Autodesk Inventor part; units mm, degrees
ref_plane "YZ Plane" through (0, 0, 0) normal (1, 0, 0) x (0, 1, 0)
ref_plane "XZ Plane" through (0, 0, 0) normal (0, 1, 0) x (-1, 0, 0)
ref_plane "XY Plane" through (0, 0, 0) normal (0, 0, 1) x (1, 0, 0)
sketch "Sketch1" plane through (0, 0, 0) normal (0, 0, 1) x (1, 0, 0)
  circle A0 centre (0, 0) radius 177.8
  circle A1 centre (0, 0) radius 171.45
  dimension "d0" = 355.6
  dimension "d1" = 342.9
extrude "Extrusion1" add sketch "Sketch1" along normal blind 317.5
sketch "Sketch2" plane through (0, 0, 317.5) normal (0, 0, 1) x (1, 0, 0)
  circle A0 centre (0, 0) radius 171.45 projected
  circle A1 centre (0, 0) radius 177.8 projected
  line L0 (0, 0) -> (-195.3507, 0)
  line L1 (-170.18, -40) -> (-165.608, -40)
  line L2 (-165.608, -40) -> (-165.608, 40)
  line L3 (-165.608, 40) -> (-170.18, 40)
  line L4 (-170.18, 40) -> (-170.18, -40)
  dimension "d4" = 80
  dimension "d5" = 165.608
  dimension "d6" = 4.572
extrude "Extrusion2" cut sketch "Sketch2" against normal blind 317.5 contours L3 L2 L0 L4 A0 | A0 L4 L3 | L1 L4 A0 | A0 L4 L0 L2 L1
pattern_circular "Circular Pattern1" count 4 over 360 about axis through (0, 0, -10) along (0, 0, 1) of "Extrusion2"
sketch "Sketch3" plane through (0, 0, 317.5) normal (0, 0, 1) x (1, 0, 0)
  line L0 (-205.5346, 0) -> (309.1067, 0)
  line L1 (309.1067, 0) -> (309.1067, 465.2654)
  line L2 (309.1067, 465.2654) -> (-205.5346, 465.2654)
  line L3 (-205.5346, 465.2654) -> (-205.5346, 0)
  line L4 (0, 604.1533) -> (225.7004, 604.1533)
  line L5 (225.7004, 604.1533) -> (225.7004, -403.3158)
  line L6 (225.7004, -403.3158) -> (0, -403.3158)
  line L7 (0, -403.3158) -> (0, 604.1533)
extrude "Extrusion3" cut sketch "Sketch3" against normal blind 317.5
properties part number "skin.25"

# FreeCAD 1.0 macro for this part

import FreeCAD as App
import Part
import Sketcher
from FreeCAD import Vector
Q = App.Units.Quantity

doc = App.newDocument("Part")
body = doc.addObject("PartDesign::Body", "Body")

# Sketch on XY plane
sketch1 = body.newObject("Sketcher::SketchObject", "Sketch")
sketch1.AttachmentSupport = (doc.getObject("XY_Plane"), [""])
sketch1.MapMode = "FlatFace"
sketch1.addGeometry(Part.Circle(Vector(0, 0, 0), Vector(0, 0, 1), 177.8), False)
sketch1.addGeometry(Part.Circle(Vector(0, 0, 0), Vector(0, 0, 1), 171.45), False)
sketch1.addConstraint(Sketcher.Constraint("Coincident", 0, 3, -1, 1))
sketch1.addConstraint(Sketcher.Constraint("Coincident", 1, 3, -1, 1))
sketch1.addConstraint(Sketcher.Constraint("Diameter", 0, Q("14 in")))
sketch1.addConstraint(Sketcher.Constraint("Diameter", 1, Q("13.5 in")))
pad1 = body.newObject("PartDesign::Pad", "Pad")
pad1.Profile = sketch1
pad1.Length = Q("12.5 in")

# Sketch on XY plane
sketch2 = body.newObject("Sketcher::SketchObject", "Sketch001")
sketch2.AttachmentSupport = (doc.getObject("XY_Plane"), [""])
sketch2.MapMode = "FlatFace"
sketch2.AttachmentOffset = App.Placement(Vector(0, 0, 12.5 * 25.4), App.Rotation())
sketch2.addGeometry(Part.LineSegment(Vector(-165.608, 40, 0), Vector(-170.18, 40, 0)), False)
sketch2.addGeometry(Part.LineSegment(Vector(-170.18, 40, 0), Vector(-170.18, -40, 0)), False)
sketch2.addGeometry(Part.LineSegment(Vector(-170.18, -40, 0), Vector(-165.608, -40, 0)), False)
sketch2.addGeometry(Part.LineSegment(Vector(-165.608, -40, 0), Vector(-165.608, 40, 0)), False)
sketch2.addConstraint(Sketcher.Constraint("Coincident", 0, 2, 1, 1))
sketch2.addConstraint(Sketcher.Constraint("Coincident", 1, 2, 2, 1))
sketch2.addConstraint(Sketcher.Constraint("Coincident", 2, 2, 3, 1))
sketch2.addConstraint(Sketcher.Constraint("Coincident", 3, 2, 0, 1))
sketch2.addConstraint(Sketcher.Constraint("Horizontal", 0))
sketch2.addConstraint(Sketcher.Constraint("Vertical", 1))
sketch2.addConstraint(Sketcher.Constraint("Horizontal", 2))
sketch2.addConstraint(Sketcher.Constraint("Vertical", 3))
sketch2.addConstraint(Sketcher.Constraint("DistanceX", 0, 2, 0, 1, Q("0.18 in")))
sketch2.addConstraint(Sketcher.Constraint("DistanceX", 2, 2, -1, 1, Q("6.52 in")))
sketch2.addConstraint(Sketcher.Constraint("DistanceY", 1, 2, 1, 1, Q("3.1496 in")))
sketch2.addConstraint(Sketcher.Constraint("DistanceY", -1, 1, 0, 2, Q("1.5748 in")))
pocket1 = body.newObject("PartDesign::Pocket", "Pocket")
pocket1.Profile = sketch2
pocket1.Length = Q("12.5 in")
doc.recompute()

polarpattern = body.newObject("PartDesign::PolarPattern", "PolarPattern")
polarpattern.Originals = [pocket1]
polarpattern.Axis = (doc.getObject("Z_Axis"), [""])
polarpattern.Angle = 360
polarpattern.Occurrences = 4
body.Tip = polarpattern

# Sketch on XY plane
sketch3 = body.newObject("Sketcher::SketchObject", "Sketch002")
sketch3.AttachmentSupport = (doc.getObject("XY_Plane"), [""])
sketch3.MapMode = "FlatFace"
sketch3.AttachmentOffset = App.Placement(Vector(0, 0, 12.5 * 25.4), App.Rotation())
sketch3.addGeometry(Part.LineSegment(Vector(-205.5346, 465.2654, 0), Vector(-205.5346, 0, 0)), False)
sketch3.addGeometry(Part.LineSegment(Vector(-205.5346, 0, 0), Vector(0, 0, 0)), False)
sketch3.addGeometry(Part.LineSegment(Vector(0, 0, 0), Vector(0, -403.3158, 0)), False)
sketch3.addGeometry(Part.LineSegment(Vector(0, -403.3158, 0), Vector(225.7004, -403.3158, 0)), False)
sketch3.addGeometry(Part.LineSegment(Vector(225.7004, -403.3158, 0), Vector(225.7004, 0, 0)), False)
sketch3.addGeometry(Part.LineSegment(Vector(225.7004, 0, 0), Vector(309.1067, 0, 0)), False)
sketch3.addGeometry(Part.LineSegment(Vector(309.1067, 0, 0), Vector(309.1067, 465.2654, 0)), False)
sketch3.addGeometry(Part.LineSegment(Vector(309.1067, 465.2654, 0), Vector(225.7004, 465.2654, 0)), False)
sketch3.addGeometry(Part.LineSegment(Vector(225.7004, 465.2654, 0), Vector(225.7004, 604.1533, 0)), False)
sketch3.addGeometry(Part.LineSegment(Vector(225.7004, 604.1533, 0), Vector(0, 604.1533, 0)), False)
sketch3.addGeometry(Part.LineSegment(Vector(0, 604.1533, 0), Vector(0, 465.2654, 0)), False)
sketch3.addGeometry(Part.LineSegment(Vector(0, 465.2654, 0), Vector(-205.5346, 465.2654, 0)), False)
sketch3.addConstraint(Sketcher.Constraint("Coincident", 0, 2, 1, 1))
sketch3.addConstraint(Sketcher.Constraint("Coincident", 1, 2, 2, 1))
sketch3.addConstraint(Sketcher.Constraint("Coincident", 2, 2, 3, 1))
sketch3.addConstraint(Sketcher.Constraint("Coincident", 3, 2, 4, 1))
sketch3.addConstraint(Sketcher.Constraint("Coincident", 4, 2, 5, 1))
sketch3.addConstraint(Sketcher.Constraint("Coincident", 5, 2, 6, 1))
sketch3.addConstraint(Sketcher.Constraint("Coincident", 6, 2, 7, 1))
sketch3.addConstraint(Sketcher.Constraint("Coincident", 7, 2, 8, 1))
sketch3.addConstraint(Sketcher.Constraint("Coincident", 8, 2, 9, 1))
sketch3.addConstraint(Sketcher.Constraint("Coincident", 9, 2, 10, 1))
sketch3.addConstraint(Sketcher.Constraint("Coincident", 10, 2, 11, 1))
sketch3.addConstraint(Sketcher.Constraint("Coincident", 11, 2, 0, 1))
sketch3.addConstraint(Sketcher.Constraint("Vertical", 0))
sketch3.addConstraint(Sketcher.Constraint("Horizontal", 1))
sketch3.addConstraint(Sketcher.Constraint("Vertical", 2))
sketch3.addConstraint(Sketcher.Constraint("Horizontal", 3))
sketch3.addConstraint(Sketcher.Constraint("Vertical", 4))
sketch3.addConstraint(Sketcher.Constraint("Horizontal", 5))
sketch3.addConstraint(Sketcher.Constraint("Vertical", 6))
sketch3.addConstraint(Sketcher.Constraint("Horizontal", 7))
sketch3.addConstraint(Sketcher.Constraint("Vertical", 8))
sketch3.addConstraint(Sketcher.Constraint("Horizontal", 9))
sketch3.addConstraint(Sketcher.Constraint("Vertical", 10))
sketch3.addConstraint(Sketcher.Constraint("Horizontal", 11))
sketch3.addConstraint(Sketcher.Constraint("Coincident", 1, 2, -1, 1))
sketch3.addConstraint(Sketcher.Constraint("PointOnObject", 4, 2, -1))
sketch3.addConstraint(Sketcher.Constraint("PointOnObject", 9, 2, -2))
sketch3.addConstraint(Sketcher.Constraint("Horizontal", 7, 2, 10, 2))
sketch3.addConstraint(Sketcher.Constraint("Vertical", 4, 2, 7, 2))
sketch3.addConstraint(Sketcher.Constraint("DistanceX", 1, 1, 1, 2, Q("205.5346 mm")))
sketch3.addConstraint(Sketcher.Constraint("DistanceX", 3, 1, 3, 2, Q("225.7004 mm")))
sketch3.addConstraint(Sketcher.Constraint("DistanceX", 5, 1, 5, 2, Q("83.4063 mm")))
sketch3.addConstraint(Sketcher.Constraint("DistanceY", 0, 2, 0, 1, Q("465.2654 mm")))
sketch3.addConstraint(Sketcher.Constraint("DistanceY", 2, 2, 2, 1, Q("403.3158 mm")))
sketch3.addConstraint(Sketcher.Constraint("DistanceY", 8, 1, 8, 2, Q("138.888 mm")))
pocket2 = body.newObject("PartDesign::Pocket", "Pocket001")
pocket2.Profile = sketch3
pocket2.Length = Q("12.5 in")

doc.recompute()
